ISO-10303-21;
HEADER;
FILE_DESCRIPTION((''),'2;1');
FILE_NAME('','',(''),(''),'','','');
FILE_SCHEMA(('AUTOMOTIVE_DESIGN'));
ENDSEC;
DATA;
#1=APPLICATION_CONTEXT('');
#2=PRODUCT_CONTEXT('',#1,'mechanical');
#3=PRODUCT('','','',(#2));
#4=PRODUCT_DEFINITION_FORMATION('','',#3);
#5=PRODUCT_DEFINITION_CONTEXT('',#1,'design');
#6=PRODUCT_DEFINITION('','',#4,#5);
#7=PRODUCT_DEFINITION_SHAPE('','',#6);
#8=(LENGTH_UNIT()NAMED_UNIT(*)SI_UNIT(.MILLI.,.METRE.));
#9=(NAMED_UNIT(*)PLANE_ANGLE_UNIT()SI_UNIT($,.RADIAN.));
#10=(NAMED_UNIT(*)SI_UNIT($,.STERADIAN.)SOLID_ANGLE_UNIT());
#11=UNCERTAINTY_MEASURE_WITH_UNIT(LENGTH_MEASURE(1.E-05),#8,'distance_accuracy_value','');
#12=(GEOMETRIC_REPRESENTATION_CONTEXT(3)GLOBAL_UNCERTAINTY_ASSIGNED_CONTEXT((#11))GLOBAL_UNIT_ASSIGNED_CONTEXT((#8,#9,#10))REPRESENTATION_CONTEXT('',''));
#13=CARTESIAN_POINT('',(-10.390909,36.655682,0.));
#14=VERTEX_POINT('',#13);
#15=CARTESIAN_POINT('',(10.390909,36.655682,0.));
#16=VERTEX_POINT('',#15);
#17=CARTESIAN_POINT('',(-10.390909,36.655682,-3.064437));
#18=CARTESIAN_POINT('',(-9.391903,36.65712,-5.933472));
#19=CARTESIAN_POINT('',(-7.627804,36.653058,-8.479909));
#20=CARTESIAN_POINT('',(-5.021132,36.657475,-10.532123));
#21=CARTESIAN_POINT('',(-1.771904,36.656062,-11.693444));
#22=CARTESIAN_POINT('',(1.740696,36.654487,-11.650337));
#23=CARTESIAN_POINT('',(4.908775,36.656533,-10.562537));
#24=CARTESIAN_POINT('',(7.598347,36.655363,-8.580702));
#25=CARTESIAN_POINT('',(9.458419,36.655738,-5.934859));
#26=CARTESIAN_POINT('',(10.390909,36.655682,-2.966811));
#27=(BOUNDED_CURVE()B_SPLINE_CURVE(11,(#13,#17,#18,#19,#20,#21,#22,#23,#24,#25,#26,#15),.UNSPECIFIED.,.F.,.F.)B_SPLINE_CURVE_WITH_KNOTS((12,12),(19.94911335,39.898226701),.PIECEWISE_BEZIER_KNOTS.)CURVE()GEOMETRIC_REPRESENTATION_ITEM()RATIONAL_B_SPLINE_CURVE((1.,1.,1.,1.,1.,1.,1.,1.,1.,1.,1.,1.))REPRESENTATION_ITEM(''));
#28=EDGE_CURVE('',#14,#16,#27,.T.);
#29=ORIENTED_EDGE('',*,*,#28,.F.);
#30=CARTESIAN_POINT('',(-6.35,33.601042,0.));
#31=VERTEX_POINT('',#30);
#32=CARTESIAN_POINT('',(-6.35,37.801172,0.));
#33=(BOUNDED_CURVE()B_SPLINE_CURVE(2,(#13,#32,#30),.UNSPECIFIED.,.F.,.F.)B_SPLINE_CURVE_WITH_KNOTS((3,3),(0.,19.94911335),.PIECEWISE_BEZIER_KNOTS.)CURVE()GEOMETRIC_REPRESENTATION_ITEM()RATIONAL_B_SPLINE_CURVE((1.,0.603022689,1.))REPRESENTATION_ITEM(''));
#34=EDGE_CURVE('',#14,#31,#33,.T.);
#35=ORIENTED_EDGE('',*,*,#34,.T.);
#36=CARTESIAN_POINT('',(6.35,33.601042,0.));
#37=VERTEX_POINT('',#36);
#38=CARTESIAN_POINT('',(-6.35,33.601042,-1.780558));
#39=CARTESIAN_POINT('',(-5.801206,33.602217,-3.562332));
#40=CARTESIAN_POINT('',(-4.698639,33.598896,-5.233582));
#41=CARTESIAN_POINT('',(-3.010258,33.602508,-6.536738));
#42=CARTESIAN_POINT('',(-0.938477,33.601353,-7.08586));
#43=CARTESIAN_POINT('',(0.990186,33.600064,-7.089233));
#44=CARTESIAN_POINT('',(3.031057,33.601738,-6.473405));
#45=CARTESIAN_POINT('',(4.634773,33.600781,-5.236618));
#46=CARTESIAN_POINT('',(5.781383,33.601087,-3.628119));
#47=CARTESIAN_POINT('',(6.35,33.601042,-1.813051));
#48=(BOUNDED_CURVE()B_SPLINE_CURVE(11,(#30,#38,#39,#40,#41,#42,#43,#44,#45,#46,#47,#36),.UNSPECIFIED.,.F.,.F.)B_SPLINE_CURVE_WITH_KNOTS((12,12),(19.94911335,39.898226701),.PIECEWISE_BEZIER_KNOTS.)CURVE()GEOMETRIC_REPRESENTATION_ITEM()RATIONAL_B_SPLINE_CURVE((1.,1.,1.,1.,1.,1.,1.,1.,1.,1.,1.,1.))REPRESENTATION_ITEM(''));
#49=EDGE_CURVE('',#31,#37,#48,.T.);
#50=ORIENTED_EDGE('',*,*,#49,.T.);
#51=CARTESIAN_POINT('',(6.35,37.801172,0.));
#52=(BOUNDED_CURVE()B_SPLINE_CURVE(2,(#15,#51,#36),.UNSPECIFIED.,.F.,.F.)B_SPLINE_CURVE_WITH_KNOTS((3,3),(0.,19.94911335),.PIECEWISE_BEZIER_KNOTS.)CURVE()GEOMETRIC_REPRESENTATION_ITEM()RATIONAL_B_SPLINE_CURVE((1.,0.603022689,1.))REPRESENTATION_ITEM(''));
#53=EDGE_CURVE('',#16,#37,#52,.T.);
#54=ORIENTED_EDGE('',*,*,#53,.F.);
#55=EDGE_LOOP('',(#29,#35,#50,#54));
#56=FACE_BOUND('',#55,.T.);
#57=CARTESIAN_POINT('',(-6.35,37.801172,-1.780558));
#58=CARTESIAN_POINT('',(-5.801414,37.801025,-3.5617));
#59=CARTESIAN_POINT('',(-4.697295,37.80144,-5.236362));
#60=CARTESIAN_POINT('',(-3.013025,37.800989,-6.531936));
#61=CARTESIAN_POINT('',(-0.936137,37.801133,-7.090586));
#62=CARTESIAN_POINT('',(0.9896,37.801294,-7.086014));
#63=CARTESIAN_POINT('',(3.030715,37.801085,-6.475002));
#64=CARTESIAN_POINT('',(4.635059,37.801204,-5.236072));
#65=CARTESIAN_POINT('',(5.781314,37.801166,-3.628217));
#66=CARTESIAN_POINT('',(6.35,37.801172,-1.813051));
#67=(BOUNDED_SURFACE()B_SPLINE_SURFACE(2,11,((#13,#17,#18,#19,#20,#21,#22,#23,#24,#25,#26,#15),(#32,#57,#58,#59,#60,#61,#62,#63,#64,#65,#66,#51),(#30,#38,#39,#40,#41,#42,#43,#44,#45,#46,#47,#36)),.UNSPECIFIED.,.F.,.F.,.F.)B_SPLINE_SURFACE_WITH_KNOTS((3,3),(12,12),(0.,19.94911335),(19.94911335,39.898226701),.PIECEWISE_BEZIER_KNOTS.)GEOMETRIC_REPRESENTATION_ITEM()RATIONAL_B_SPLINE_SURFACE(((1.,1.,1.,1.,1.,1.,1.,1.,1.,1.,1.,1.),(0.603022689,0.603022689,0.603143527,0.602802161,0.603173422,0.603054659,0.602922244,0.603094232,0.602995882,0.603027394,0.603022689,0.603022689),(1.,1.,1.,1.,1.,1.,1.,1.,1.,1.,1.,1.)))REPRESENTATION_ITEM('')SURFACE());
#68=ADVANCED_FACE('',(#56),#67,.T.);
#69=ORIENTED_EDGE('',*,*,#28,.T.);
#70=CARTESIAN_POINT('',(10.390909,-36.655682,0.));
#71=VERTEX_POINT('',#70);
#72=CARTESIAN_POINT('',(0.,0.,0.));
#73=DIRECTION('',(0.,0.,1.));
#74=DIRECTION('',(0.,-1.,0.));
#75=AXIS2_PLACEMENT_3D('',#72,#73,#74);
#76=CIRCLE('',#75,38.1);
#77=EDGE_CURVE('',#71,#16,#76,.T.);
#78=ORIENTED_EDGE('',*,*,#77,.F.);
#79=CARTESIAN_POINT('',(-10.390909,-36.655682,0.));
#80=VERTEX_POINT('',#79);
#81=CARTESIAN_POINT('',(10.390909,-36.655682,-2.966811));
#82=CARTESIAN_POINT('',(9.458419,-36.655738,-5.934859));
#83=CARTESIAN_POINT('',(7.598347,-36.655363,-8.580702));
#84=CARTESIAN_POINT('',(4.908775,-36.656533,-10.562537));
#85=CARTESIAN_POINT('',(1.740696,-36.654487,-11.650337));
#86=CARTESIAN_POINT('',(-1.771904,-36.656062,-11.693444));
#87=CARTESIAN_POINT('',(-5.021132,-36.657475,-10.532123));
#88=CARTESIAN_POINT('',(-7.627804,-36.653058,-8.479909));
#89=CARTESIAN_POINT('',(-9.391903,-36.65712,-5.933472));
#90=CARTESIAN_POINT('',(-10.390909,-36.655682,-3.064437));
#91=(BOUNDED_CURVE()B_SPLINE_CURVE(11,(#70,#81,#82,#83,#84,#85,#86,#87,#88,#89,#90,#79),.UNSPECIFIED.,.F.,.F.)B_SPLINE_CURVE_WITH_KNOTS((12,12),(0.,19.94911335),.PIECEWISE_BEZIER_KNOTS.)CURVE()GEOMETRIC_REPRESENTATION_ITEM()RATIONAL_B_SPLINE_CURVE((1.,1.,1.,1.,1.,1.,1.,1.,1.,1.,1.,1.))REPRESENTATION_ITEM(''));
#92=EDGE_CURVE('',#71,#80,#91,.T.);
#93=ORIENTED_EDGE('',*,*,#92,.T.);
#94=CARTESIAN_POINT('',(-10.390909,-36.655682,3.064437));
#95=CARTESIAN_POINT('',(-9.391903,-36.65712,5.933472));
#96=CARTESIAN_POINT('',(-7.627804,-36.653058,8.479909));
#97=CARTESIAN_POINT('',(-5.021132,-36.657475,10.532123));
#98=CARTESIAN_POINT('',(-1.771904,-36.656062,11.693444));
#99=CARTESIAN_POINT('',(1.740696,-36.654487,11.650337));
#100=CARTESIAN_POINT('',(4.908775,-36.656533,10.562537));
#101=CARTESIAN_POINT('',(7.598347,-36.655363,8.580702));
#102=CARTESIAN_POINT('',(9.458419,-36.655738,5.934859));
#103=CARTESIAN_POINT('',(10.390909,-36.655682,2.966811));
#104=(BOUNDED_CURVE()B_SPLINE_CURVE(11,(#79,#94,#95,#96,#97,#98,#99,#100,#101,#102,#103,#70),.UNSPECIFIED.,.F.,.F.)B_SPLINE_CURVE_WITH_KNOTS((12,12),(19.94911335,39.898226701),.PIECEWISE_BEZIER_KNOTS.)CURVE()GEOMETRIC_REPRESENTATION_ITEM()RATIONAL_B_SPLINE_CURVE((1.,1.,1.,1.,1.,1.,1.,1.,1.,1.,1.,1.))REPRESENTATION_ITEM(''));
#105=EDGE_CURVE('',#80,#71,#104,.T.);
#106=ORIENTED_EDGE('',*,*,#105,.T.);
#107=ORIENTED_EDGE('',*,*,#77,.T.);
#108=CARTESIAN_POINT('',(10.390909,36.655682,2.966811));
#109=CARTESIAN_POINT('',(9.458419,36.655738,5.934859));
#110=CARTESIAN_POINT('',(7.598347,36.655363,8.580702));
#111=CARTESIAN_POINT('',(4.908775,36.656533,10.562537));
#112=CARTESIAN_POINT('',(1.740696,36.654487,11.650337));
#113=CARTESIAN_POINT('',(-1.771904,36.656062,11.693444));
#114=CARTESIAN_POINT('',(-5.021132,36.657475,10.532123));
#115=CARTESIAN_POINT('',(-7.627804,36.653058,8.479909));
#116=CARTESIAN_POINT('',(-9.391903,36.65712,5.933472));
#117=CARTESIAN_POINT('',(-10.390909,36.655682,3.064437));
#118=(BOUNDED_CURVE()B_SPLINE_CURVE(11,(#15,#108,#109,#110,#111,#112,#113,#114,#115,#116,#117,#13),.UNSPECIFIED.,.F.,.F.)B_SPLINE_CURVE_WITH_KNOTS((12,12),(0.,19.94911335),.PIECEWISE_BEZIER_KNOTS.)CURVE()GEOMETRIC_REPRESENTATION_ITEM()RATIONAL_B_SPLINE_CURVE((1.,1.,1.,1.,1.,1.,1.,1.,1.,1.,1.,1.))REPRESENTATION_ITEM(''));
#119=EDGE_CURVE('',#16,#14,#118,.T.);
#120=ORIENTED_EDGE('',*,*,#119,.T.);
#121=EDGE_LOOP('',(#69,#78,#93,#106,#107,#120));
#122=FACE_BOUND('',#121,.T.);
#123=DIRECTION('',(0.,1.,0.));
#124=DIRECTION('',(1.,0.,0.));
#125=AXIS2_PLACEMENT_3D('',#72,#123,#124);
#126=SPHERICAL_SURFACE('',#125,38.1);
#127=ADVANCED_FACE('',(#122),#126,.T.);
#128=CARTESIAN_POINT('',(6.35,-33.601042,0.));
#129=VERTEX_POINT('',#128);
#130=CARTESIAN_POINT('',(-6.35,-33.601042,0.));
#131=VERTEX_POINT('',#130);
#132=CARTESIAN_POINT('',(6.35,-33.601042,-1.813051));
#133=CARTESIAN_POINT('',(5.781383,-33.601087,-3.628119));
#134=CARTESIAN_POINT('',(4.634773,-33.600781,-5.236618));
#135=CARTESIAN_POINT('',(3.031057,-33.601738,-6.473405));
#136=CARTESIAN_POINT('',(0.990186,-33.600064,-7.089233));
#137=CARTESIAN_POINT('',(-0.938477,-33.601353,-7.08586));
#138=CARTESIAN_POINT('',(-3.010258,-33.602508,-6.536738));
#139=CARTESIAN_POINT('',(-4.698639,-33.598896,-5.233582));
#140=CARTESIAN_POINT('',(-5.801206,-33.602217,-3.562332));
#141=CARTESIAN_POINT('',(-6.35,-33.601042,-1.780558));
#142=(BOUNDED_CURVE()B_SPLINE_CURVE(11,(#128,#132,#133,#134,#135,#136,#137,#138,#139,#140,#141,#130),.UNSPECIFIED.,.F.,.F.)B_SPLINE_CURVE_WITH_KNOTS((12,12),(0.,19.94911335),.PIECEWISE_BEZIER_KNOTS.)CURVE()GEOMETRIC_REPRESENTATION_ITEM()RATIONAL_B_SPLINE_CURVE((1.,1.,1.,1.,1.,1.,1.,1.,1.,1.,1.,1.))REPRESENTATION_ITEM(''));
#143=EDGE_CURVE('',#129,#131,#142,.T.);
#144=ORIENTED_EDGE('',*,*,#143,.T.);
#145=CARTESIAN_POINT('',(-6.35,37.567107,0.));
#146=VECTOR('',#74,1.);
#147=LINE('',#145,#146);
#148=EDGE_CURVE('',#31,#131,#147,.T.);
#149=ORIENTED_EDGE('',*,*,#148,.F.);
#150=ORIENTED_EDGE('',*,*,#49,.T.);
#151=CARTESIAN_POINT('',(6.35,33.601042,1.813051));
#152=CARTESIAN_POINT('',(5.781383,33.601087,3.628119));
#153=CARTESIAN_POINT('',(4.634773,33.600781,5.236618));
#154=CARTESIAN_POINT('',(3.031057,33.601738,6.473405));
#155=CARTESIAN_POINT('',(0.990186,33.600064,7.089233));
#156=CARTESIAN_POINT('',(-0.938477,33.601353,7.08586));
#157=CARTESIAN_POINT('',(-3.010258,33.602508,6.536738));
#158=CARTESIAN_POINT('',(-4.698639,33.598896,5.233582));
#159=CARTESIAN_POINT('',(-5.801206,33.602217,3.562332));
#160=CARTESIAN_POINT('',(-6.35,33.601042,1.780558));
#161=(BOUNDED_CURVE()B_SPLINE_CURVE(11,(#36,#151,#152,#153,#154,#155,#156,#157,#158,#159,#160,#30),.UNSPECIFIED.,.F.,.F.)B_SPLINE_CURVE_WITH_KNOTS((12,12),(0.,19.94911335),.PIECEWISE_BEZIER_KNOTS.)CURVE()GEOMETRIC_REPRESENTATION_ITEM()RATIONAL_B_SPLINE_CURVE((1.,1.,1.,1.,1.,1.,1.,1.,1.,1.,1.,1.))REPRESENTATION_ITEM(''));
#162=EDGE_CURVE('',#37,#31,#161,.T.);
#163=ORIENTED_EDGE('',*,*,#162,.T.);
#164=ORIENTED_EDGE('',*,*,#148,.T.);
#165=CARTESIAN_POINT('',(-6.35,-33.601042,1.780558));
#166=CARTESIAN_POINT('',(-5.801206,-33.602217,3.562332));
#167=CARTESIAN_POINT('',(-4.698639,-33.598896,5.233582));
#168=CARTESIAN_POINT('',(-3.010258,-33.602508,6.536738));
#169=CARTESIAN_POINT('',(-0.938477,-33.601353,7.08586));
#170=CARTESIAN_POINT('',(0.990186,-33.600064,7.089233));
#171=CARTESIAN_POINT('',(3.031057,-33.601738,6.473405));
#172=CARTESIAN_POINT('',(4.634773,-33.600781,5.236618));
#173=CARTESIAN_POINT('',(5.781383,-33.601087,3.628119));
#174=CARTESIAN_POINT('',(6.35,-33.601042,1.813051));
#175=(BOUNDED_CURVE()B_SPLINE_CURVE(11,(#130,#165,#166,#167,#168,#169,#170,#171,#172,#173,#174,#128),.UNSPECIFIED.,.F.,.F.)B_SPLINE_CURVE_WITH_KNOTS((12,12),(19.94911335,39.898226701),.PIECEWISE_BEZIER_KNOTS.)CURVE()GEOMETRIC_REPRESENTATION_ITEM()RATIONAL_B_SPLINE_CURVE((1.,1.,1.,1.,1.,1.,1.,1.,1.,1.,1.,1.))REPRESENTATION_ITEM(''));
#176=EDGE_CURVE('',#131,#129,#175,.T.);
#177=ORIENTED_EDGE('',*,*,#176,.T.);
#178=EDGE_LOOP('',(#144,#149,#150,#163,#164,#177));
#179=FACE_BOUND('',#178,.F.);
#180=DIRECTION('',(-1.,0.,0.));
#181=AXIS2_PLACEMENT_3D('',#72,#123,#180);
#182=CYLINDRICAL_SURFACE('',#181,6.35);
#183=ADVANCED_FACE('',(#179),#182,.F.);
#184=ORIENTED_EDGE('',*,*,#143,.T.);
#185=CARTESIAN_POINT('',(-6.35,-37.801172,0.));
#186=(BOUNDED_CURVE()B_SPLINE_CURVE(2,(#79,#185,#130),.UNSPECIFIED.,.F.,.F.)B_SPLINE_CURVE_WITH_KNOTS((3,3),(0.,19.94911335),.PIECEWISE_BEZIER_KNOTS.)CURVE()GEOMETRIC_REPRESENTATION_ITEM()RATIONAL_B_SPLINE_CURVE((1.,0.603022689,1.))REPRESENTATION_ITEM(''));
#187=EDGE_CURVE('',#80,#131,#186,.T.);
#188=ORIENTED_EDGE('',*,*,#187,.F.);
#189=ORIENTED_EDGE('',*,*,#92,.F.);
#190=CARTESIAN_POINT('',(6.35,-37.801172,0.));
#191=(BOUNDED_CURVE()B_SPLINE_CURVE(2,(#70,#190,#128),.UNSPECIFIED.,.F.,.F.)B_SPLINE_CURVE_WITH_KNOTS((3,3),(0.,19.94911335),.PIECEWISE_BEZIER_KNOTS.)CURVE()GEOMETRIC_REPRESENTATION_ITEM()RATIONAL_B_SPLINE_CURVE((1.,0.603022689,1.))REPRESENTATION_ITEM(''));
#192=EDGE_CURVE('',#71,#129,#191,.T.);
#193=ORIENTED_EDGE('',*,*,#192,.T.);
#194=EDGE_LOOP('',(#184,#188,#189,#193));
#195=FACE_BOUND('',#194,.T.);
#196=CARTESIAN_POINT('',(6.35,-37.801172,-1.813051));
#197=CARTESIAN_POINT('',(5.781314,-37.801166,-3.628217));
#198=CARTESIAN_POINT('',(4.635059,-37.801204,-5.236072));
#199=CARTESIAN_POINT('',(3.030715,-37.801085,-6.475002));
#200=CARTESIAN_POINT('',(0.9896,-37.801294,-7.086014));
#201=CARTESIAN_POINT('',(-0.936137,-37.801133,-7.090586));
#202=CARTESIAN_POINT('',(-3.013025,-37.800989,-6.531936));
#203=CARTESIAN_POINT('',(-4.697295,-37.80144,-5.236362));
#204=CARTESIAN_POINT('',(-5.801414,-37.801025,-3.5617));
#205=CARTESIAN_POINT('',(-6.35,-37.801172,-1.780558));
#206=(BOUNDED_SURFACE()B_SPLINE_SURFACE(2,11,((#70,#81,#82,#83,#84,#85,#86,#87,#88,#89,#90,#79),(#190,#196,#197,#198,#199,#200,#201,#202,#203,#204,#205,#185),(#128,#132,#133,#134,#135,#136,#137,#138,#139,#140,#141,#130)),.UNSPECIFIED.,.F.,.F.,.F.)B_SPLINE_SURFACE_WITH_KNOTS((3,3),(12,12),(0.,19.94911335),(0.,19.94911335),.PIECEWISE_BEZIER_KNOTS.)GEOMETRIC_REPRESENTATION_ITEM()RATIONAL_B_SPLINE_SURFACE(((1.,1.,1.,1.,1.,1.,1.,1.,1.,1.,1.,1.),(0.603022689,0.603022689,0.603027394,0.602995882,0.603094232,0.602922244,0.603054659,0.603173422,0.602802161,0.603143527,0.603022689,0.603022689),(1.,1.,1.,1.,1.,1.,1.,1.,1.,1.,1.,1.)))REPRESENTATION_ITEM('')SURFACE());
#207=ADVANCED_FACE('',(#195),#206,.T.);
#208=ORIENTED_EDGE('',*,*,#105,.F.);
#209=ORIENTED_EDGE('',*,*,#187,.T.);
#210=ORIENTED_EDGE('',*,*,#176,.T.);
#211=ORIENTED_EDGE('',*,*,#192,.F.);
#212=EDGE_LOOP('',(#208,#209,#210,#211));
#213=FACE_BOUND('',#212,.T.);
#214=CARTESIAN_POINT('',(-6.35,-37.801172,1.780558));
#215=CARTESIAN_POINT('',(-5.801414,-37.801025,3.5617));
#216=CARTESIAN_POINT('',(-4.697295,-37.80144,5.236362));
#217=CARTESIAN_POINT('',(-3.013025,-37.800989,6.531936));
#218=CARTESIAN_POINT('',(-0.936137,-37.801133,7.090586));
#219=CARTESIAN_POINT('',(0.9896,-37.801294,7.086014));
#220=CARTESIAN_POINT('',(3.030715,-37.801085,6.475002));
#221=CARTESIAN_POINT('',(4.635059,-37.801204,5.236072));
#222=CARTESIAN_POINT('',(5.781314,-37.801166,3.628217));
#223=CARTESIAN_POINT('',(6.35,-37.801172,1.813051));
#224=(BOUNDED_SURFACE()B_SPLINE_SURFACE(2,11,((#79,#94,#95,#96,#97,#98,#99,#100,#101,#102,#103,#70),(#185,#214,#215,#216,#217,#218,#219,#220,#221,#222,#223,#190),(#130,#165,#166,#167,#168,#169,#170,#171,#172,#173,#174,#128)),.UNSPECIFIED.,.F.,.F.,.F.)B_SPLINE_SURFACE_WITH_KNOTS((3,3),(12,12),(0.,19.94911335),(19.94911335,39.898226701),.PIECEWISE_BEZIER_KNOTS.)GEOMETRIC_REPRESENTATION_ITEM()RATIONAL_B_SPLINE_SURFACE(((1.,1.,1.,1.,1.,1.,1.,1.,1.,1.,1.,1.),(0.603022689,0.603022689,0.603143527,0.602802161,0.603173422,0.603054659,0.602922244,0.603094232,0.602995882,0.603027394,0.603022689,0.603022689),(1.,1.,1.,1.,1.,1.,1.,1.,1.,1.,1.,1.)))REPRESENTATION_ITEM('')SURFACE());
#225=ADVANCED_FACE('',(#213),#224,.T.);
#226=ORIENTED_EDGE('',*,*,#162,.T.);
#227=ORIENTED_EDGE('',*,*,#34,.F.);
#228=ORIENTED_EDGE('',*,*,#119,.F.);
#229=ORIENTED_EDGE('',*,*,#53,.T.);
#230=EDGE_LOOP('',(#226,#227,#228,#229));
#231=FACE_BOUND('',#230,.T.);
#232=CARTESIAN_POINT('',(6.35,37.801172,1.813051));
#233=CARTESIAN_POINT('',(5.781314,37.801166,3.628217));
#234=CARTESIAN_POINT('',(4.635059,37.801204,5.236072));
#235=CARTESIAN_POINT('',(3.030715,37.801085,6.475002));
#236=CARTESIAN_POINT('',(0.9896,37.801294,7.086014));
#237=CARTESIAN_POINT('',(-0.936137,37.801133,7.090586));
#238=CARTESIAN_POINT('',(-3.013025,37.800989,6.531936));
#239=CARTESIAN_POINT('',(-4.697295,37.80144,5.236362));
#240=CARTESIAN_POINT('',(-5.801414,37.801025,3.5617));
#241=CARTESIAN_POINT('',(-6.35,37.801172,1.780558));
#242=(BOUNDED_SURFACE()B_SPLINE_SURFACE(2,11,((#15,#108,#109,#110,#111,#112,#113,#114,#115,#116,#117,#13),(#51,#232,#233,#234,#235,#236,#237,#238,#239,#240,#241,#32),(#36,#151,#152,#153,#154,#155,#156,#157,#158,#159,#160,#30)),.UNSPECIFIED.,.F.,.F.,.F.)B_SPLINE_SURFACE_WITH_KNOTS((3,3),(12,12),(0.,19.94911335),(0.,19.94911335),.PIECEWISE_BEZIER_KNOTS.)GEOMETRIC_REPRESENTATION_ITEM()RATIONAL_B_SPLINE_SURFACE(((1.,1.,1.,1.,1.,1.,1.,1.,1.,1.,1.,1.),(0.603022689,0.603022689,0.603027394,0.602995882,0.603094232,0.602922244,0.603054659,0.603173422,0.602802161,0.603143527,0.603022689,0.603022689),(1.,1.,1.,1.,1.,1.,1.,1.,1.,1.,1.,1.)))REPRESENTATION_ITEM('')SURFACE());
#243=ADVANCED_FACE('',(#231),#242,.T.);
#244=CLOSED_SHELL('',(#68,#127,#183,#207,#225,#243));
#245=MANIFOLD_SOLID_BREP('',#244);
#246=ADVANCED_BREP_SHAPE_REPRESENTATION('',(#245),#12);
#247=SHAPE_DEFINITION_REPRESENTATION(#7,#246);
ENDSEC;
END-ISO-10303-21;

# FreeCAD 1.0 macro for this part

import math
import FreeCAD as App
import Part
import Sketcher

V = App.Vector
Q = App.Units.Quantity

doc = App.newDocument("Part")
body = doc.addObject("PartDesign::Body", "Body")

# Sketch on XY plane
sketch1 = doc.addObject("Sketcher::SketchObject", "Sketch")
body.addObject(sketch1)
sketch1.AttachmentSupport = (doc.XY_Plane, [""])
sketch1.MapMode = "FlatFace"
sketch1.addGeometry(Part.LineSegment(V(0, 38, 0), V(0, -38, 0)), False)
sketch1.addGeometry(Part.ArcOfCircle(Part.Circle(V(0, 0, 0), V(0, 0, 1), 38), math.radians(-90), math.radians(90)), False)
sketch1.addConstraint(Sketcher.Constraint("Coincident", 0, 1, 1, 2))
sketch1.addConstraint(Sketcher.Constraint("Coincident", 1, 1, 0, 2))
sketch1.addConstraint(Sketcher.Constraint("Vertical", 0))
sketch1.addConstraint(Sketcher.Constraint("Coincident", 1, 3, -1, 1))
sketch1.addConstraint(Sketcher.Constraint("PointOnObject", 0, 1, -2))
sketch1.addConstraint(Sketcher.Constraint("Radius", 1, Q("1.5 in")))
revolution = doc.addObject("PartDesign::Revolution", "Revolution")
body.addObject(revolution)
revolution.Profile = sketch1
revolution.ReferenceAxis = (sketch1, ["V_Axis"])
revolution.Angle = 360

# Sketch on XZ plane
sketch2 = doc.addObject("Sketcher::SketchObject", "Sketch001")
body.addObject(sketch2)
sketch2.AttachmentSupport = (doc.XZ_Plane, [""])
sketch2.MapMode = "FlatFace"
sketch2.addGeometry(Part.Circle(V(0, 0, 0), V(0, 0, 1), 6), False)
sketch2.addConstraint(Sketcher.Constraint("Coincident", 0, 3, -1, 1))
sketch2.addConstraint(Sketcher.Constraint("Diameter", 0, Q("0.5 in")))
pocket1 = doc.addObject("PartDesign::Pocket", "Pocket")
body.addObject(pocket1)
pocket1.Profile = sketch2
pocket1.Length = Q("3 in")
pocket1.Midplane = True
doc.recompute()

fillet = doc.addObject("PartDesign::Fillet", "Fillet")
body.addObject(fillet)
fillet.Base = (pocket1, ["Edge1"])
fillet.UseAllEdges = True
fillet.Radius = Q("0.125 in")

doc.recompute()
